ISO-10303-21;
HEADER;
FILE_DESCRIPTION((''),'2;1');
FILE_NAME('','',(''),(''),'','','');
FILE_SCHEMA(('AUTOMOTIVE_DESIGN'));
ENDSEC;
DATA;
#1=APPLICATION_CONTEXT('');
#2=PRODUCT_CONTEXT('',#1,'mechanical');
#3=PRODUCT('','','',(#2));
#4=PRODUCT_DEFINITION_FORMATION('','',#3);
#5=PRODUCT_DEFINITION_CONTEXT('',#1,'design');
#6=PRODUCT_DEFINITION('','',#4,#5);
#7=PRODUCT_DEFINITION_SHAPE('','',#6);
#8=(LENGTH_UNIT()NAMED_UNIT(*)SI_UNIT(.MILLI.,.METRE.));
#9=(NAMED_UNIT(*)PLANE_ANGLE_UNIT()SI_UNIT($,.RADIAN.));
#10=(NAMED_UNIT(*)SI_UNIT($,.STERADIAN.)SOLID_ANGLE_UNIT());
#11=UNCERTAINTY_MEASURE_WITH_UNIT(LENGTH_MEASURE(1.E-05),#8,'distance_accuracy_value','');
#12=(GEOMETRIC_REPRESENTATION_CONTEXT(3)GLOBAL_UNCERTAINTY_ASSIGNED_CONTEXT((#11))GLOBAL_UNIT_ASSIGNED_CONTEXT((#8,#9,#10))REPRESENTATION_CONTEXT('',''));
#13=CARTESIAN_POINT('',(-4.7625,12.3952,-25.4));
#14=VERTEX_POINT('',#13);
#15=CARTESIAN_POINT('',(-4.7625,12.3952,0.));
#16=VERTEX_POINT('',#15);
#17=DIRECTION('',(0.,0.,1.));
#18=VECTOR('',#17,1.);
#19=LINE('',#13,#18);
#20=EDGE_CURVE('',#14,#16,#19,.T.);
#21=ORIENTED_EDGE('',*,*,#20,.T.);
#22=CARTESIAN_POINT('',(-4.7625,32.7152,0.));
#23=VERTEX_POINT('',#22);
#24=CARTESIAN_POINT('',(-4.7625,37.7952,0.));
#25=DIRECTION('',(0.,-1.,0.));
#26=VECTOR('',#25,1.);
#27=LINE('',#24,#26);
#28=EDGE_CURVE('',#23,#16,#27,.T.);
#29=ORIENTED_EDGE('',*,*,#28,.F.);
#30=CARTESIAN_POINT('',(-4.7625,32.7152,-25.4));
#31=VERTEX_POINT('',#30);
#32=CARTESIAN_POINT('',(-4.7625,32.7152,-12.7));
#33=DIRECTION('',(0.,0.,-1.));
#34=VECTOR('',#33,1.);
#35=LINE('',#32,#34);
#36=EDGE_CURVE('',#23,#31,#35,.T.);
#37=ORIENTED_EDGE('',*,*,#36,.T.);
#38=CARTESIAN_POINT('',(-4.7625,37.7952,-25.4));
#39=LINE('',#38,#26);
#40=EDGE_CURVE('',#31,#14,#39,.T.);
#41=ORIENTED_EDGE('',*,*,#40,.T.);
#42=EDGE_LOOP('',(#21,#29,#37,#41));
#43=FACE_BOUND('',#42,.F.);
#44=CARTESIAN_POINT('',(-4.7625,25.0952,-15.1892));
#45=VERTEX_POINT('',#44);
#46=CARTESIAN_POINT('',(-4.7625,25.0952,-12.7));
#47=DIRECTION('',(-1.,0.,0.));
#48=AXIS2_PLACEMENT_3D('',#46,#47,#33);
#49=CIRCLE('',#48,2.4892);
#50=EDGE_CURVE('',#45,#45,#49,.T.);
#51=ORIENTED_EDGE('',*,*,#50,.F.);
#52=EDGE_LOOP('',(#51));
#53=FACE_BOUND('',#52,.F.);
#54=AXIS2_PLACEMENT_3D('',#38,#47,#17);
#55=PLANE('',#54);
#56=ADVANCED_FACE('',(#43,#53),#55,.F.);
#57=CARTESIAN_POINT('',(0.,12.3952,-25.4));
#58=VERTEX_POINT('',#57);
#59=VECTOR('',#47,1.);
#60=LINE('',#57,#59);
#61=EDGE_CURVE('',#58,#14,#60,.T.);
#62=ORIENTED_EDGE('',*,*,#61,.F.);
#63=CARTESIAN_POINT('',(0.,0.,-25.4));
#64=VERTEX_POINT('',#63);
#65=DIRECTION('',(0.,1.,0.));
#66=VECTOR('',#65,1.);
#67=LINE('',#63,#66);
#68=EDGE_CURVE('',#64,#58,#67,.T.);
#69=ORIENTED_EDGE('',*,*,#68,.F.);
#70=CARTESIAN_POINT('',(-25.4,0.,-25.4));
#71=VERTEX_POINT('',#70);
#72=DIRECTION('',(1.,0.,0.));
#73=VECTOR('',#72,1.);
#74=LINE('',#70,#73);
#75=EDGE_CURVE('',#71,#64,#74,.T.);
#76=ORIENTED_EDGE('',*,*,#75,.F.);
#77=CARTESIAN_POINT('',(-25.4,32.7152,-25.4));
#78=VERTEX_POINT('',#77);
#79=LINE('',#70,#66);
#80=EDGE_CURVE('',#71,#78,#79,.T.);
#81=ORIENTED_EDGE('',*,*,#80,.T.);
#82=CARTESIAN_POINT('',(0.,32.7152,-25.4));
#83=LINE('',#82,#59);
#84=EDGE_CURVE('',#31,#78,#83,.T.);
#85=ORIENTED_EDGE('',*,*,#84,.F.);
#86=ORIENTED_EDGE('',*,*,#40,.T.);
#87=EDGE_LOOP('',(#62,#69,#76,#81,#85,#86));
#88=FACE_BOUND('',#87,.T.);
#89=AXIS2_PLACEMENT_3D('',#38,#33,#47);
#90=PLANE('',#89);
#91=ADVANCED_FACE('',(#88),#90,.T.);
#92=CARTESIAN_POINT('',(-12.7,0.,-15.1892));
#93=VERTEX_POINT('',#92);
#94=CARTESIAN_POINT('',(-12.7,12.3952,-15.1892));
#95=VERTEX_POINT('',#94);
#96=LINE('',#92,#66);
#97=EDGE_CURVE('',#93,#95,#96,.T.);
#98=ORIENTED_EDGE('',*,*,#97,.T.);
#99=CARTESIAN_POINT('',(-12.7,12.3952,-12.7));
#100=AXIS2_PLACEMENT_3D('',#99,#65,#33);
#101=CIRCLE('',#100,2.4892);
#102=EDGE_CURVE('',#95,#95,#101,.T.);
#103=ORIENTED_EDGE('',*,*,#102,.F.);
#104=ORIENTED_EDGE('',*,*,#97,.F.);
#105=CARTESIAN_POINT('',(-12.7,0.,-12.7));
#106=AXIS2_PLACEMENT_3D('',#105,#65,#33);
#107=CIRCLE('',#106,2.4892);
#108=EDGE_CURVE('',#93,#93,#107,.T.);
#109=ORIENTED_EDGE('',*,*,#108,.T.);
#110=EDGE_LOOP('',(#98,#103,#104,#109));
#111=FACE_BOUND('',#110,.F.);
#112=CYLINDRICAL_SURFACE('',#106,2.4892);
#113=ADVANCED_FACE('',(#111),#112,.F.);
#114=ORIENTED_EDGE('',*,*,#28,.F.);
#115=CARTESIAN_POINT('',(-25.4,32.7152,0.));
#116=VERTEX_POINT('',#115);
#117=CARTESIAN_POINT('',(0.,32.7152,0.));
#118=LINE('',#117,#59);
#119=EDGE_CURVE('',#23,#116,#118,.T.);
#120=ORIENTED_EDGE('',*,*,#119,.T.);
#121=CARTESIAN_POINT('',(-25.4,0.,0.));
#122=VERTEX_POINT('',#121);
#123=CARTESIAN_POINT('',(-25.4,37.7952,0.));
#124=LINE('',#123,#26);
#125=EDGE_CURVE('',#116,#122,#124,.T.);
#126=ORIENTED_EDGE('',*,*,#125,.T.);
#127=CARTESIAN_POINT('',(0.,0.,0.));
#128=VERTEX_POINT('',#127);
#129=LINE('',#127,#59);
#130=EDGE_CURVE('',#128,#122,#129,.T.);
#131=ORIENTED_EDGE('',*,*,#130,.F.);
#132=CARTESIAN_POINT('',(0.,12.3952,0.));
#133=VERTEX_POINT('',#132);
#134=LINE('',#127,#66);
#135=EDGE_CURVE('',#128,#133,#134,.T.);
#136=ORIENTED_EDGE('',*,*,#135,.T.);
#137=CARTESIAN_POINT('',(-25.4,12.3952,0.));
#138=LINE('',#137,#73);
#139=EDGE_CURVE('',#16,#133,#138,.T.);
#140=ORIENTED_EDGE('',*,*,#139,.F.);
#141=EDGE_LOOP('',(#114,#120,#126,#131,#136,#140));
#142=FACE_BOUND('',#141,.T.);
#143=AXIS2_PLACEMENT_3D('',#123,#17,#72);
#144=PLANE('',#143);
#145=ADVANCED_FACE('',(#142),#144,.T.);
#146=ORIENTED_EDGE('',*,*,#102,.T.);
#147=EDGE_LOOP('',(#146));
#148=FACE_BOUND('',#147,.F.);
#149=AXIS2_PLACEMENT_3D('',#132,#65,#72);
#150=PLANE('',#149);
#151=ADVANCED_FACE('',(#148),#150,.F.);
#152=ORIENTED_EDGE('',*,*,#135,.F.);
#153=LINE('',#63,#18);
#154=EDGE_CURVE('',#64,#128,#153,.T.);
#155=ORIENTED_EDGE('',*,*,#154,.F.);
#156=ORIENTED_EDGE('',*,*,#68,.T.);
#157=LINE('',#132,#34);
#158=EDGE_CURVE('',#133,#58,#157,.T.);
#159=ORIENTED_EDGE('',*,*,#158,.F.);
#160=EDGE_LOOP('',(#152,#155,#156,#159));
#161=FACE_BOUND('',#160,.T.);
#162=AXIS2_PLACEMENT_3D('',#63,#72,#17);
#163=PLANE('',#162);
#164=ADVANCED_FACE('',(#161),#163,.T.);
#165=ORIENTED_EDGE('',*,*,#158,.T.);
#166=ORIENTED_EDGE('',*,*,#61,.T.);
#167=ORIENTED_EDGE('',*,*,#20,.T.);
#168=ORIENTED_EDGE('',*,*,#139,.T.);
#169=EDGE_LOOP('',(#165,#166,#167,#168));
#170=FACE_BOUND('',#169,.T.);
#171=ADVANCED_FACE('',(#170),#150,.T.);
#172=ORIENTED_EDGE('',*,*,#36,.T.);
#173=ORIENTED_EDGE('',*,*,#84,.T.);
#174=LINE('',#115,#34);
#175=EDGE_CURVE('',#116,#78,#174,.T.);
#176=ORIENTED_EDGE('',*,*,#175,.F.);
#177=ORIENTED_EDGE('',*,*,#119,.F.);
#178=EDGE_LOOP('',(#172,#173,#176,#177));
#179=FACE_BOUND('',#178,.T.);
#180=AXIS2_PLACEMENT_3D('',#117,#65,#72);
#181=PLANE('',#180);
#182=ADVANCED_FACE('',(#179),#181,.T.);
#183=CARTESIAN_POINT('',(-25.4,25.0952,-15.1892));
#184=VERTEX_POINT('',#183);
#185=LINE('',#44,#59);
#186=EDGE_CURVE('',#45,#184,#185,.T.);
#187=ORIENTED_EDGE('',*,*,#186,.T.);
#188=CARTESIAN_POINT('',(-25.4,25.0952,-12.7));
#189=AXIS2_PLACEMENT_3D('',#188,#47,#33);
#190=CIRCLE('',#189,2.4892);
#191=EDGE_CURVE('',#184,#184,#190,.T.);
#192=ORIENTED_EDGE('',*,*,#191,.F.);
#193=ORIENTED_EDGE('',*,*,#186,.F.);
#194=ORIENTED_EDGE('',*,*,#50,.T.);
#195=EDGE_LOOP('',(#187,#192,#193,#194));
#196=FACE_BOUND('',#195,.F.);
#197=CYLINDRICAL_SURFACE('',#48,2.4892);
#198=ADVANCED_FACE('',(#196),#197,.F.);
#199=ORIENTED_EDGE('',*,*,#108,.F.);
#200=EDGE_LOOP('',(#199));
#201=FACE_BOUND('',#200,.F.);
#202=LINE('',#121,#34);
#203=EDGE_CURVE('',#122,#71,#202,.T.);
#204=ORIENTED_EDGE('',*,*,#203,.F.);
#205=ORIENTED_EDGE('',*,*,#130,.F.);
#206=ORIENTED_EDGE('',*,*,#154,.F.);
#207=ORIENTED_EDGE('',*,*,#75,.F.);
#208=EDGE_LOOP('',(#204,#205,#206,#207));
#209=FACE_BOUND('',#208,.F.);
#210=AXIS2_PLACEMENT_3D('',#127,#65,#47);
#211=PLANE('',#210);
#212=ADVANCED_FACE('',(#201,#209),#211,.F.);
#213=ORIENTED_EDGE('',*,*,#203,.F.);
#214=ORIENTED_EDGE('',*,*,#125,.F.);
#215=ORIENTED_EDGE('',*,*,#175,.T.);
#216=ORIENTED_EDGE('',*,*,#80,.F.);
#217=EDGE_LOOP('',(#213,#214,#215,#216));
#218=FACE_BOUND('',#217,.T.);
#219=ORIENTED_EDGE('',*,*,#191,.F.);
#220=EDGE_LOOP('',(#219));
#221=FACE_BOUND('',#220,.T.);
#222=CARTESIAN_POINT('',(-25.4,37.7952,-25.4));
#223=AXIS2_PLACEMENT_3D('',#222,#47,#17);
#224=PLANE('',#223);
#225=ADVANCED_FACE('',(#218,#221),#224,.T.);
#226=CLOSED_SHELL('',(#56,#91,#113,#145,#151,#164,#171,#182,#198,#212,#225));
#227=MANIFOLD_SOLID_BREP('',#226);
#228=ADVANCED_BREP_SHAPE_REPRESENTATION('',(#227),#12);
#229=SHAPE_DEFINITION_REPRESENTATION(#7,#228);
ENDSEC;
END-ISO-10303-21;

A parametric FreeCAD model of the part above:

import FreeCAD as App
import Part
import Sketcher

V = App.Vector
Q = App.Units.Quantity


def add_polygon(sketch, points):
    """Adds a closed chain of lines whose ends are joined by coincident constraints."""
    first, n = sketch.GeometryCount, len(points)
    for a, b in zip(points, points[1:] + points[:1]):
        sketch.addGeometry(Part.LineSegment(App.Vector(*a, 0), App.Vector(*b, 0)), False)
    for i in range(n):
        sketch.addConstraint(Sketcher.Constraint("Coincident", first + i, 2, first + (i + 1) % n, 1))

doc = App.newDocument("Part")
body = doc.addObject("PartDesign::Body", "Body")

# Sketch on XZ plane
sketch1 = body.newObject("Sketcher::SketchObject", "Sketch")
sketch1.AttachmentSupport = (doc.getObject("XZ_Plane"), [""])
sketch1.MapMode = "FlatFace"
add_polygon(sketch1, [(-25, 0), (0, 0), (0, -25), (-25, -25)])  # lines 0-3
sketch1.addConstraint([
    Sketcher.Constraint("Horizontal", 0),
    Sketcher.Constraint("Vertical", 1),
    Sketcher.Constraint("Horizontal", 2),
    Sketcher.Constraint("Vertical", 3),
    Sketcher.Constraint("Coincident", 0, 2, -1, 1),
    Sketcher.Constraint("Equal", 2, 1),
    Sketcher.Constraint("DistanceX", 0, 1, 0, 2, Q("1 in")),
])
pad1 = body.newObject("PartDesign::Pad", "Pad")
pad1.Profile = sketch1
pad1.Length = Q("1.488 in")
pad1.Reversed = True

# Sketch on XZ plane
sketch2 = body.newObject("Sketcher::SketchObject", "Sketch001")
sketch2.AttachmentSupport = (doc.getObject("XZ_Plane"), [""])
sketch2.MapMode = "FlatFace"
sketch2.addGeometry(Part.Circle(V(-12.7, -12.7, 0), V(0, 0, 1), 2.5), False)
sketch2.addConstraint([
    Sketcher.Constraint("Diameter", 0, Q("0.196 in")),
    Sketcher.Constraint("DistanceX", 0, 3, -1, 1, Q("0.5 in")),
    Sketcher.Constraint("DistanceY", 0, 3, -1, 1, Q("0.5 in")),
])
doc.recompute()
hole = body.newObject("PartDesign::Hole", "Hole")
hole.Profile = sketch2
hole.ThreadType = "None"
hole.Diameter = Q("0.196 in")
hole.DepthType = "Dimension"
hole.Depth = Q("0.75 in")
hole.DrillPoint = "Flat"

# Sketch on YZ plane
sketch3 = body.newObject("Sketcher::SketchObject", "Sketch002")
sketch3.AttachmentSupport = (doc.getObject("YZ_Plane"), [""])
sketch3.MapMode = "FlatFace"
sketch3.AttachmentOffset = App.Placement(V(0, 0, -1 * 25.4), App.Rotation())
sketch3.addGeometry(Part.Circle(V(25.1, -12.7, 0), V(0, 0, 1), 2.5), False)
sketch3.addConstraint([
    Sketcher.Constraint("Diameter", 0, Q("0.196 in")),
    Sketcher.Constraint("DistanceY", 0, 3, -1, 1, Q("0.5 in")),
    Sketcher.Constraint("DistanceX", -1, 1, 0, 3, Q("0.988 in")),
])
doc.recompute()
hole2 = body.newObject("PartDesign::Hole", "Hole001")
hole2.Profile = sketch3
hole2.ThreadType = "None"
hole2.Diameter = Q("0.196 in")
hole2.DepthType = "ThroughAll"
hole2.Reversed = True

# Sketch on XZ plane
sketch4 = body.newObject("Sketcher::SketchObject", "Sketch003")
sketch4.AttachmentSupport = (doc.getObject("XZ_Plane"), [""])
sketch4.MapMode = "FlatFace"
sketch4.AttachmentOffset = App.Placement(V(0, 0, -1.488 * 25.4), App.Rotation())
add_polygon(sketch4, [(0, 0), (0, -25), (-25, -25), (-25, 0)])  # lines 0-3
sketch4.addConstraint([
    Sketcher.Constraint("Vertical", 0),
    Sketcher.Constraint("Horizontal", 1),
    Sketcher.Constraint("Vertical", 2),
    Sketcher.Constraint("Horizontal", 3),
    Sketcher.Constraint("Coincident", 3, 2, -1, 1),
    Sketcher.Constraint("Equal", 3, 0),
    Sketcher.Constraint("DistanceX", 1, 2, 1, 1, Q("1 in")),
])
pocket1 = body.newObject("PartDesign::Pocket", "Pocket")
pocket1.Profile = sketch4
pocket1.Length = Q("1 in")
pocket1.Reversed = True

# Sketch on XZ plane
sketch5 = body.newObject("Sketcher::SketchObject", "Sketch004")
sketch5.AttachmentSupport = (doc.getObject("XZ_Plane"), [""])
sketch5.MapMode = "FlatFace"
sketch5.AttachmentOffset = App.Placement(V(0, 0, -1.488 * 25.4), App.Rotation())
add_polygon(sketch5, [(-5, 0), (-5, -25), (-25, -25), (-25, 0)])  # lines 0-3
sketch5.addConstraint([
    Sketcher.Constraint("Vertical", 0),
    Sketcher.Constraint("Horizontal", 1),
    Sketcher.Constraint("Vertical", 2),
    Sketcher.Constraint("Horizontal", 3),
    Sketcher.Constraint("PointOnObject", 2, 2, -1),
    Sketcher.Constraint("DistanceY", 0, 2, 0, 1, Q("1 in")),
    Sketcher.Constraint("DistanceX", 0, 2, -1, 1, Q("0.1875 in")),
    Sketcher.Constraint("DistanceX", 1, 2, -1, 1, Q("1 in")),
])
pad2 = body.newObject("PartDesign::Pad", "Pad001")
pad2.Profile = sketch5
pad2.Length = Q("1 in")

# Sketch on YZ plane
sketch6 = body.newObject("Sketcher::SketchObject", "Sketch005")
sketch6.AttachmentSupport = (doc.getObject("YZ_Plane"), [""])
sketch6.MapMode = "FlatFace"
sketch6.AttachmentOffset = App.Placement(V(0, 0, -0.1875 * 25.4), App.Rotation())
sketch6.addGeometry(Part.Circle(V(25.1, -12.7, 0), V(0, 0, 1), 2.5), False)
sketch6.addConstraint([
    Sketcher.Constraint("Diameter", 0, Q("0.196 in")),
    Sketcher.Constraint("DistanceY", 0, 3, -1, 1, Q("0.5 in")),
    Sketcher.Constraint("DistanceX", -1, 1, 0, 3, Q("0.988 in")),
])
doc.recompute()
hole3 = body.newObject("PartDesign::Hole", "Hole002")
hole3.Profile = sketch6
hole3.ThreadType = "None"
hole3.Diameter = Q("0.196 in")
hole3.DepthType = "ThroughAll"

# Sketch on XZ plane
sketch7 = body.newObject("Sketcher::SketchObject", "Sketch006")
sketch7.AttachmentSupport = (doc.getObject("XZ_Plane"), [""])
sketch7.MapMode = "FlatFace"
sketch7.AttachmentOffset = App.Placement(V(0, 0, -1.488 * 25.4), App.Rotation())
add_polygon(sketch7, [(0, 0), (0, -25), (-25, -25), (-25, 0)])  # lines 0-3
sketch7.addConstraint([
    Sketcher.Constraint("Vertical", 0),
    Sketcher.Constraint("Horizontal", 1),
    Sketcher.Constraint("Vertical", 2),
    Sketcher.Constraint("Horizontal", 3),
    Sketcher.Constraint("Coincident", 3, 2, -1, 1),
    Sketcher.Constraint("Equal", 3, 0),
    Sketcher.Constraint("DistanceX", 1, 2, 1, 1, Q("1 in")),
])
pocket2 = body.newObject("PartDesign::Pocket", "Pocket001")
pocket2.Profile = sketch7
pocket2.Length = Q("0.2 in")
pocket2.Reversed = True

doc.recompute()
